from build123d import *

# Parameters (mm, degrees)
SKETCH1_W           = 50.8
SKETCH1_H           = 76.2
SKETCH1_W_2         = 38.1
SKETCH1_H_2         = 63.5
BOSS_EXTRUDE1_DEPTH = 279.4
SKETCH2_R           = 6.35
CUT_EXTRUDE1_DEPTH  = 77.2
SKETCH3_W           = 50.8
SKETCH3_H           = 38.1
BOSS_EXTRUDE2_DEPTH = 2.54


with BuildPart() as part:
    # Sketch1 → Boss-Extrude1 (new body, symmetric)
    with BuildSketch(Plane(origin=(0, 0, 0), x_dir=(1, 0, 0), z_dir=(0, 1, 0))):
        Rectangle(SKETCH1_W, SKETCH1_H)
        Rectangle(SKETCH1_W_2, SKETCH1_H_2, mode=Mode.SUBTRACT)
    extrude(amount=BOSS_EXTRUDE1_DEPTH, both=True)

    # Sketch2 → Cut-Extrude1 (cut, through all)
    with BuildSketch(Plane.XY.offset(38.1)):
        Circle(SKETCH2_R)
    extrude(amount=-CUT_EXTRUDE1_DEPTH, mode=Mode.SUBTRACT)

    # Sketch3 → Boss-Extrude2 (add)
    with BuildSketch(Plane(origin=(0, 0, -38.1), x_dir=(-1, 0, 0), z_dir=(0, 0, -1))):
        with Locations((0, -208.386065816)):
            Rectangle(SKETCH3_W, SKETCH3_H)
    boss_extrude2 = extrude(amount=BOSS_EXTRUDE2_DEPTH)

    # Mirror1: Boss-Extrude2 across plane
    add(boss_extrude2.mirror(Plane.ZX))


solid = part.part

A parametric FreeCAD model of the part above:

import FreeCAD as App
import Part
import Sketcher
from FreeCAD import Vector
Q = App.Units.Quantity


def add_polygon(sketch, points):
    """Adds a closed chain of lines whose ends are joined by coincident constraints."""
    first, n = sketch.GeometryCount, len(points)
    for a, b in zip(points, points[1:] + points[:1]):
        sketch.addGeometry(Part.LineSegment(App.Vector(*a, 0), App.Vector(*b, 0)), False)
    for i in range(n):
        sketch.addConstraint(Sketcher.Constraint("Coincident", first + i, 2, first + (i + 1) % n, 1))

doc = App.newDocument("Part")
body = doc.addObject("PartDesign::Body", "Body")

sketch1 = body.newObject("Sketcher::SketchObject", "Sketch")
sketch1.AttachmentSupport = (doc.getObject("XZ_Plane"), [""])
sketch1.MapMode = "FlatFace"
add_polygon(sketch1, [(-25.4, -38.1), (-25.4, 38.1), (25.4, 38.1), (25.4, -38.1)])
add_polygon(sketch1, [(19.05, 31.75), (-19.05, 31.75), (-19.05, -31.75), (19.05, -31.75)])
sketch1.addConstraint(Sketcher.Constraint("Vertical", 0))
sketch1.addConstraint(Sketcher.Constraint("Horizontal", 1))
sketch1.addConstraint(Sketcher.Constraint("Vertical", 2))
sketch1.addConstraint(Sketcher.Constraint("Horizontal", 3))
sketch1.addConstraint(Sketcher.Constraint("Horizontal", 4))
sketch1.addConstraint(Sketcher.Constraint("Vertical", 5))
sketch1.addConstraint(Sketcher.Constraint("Horizontal", 6))
sketch1.addConstraint(Sketcher.Constraint("Vertical", 7))
sketch1.addConstraint(Sketcher.Constraint("Symmetric", 0, 2, 2, 2, -1, 1))
sketch1.addConstraint(Sketcher.Constraint("Symmetric", 4, 2, 6, 2, -1, 1))
sketch1.addConstraint(Sketcher.Constraint("DistanceX", 1, 1, 1, 2, Q("2 in")))
sketch1.addConstraint(Sketcher.Constraint("DistanceY", 0, 1, 0, 2, Q("3 in")))
sketch1.addConstraint(Sketcher.Constraint("DistanceX", 4, 2, 4, 1, Q("1.5 in")))
sketch1.addConstraint(Sketcher.Constraint("DistanceY", 5, 2, 5, 1, Q("2.5 in")))
pad1 = body.newObject("PartDesign::Pad", "Pad")
pad1.Profile = sketch1
pad1.Length = Q("22 in")
pad1.Midplane = True

sketch2 = body.newObject("Sketcher::SketchObject", "Sketch001")
sketch2.AttachmentSupport = (doc.getObject("XY_Plane"), [""])
sketch2.MapMode = "FlatFace"
sketch2.AttachmentOffset = App.Placement(Vector(0, 0, 1.5 * 25.4), App.Rotation())
sketch2.addGeometry(Part.Circle(Vector(0, 0, 0), Vector(0, 0, 1), 6.35), False)
sketch2.addConstraint(Sketcher.Constraint("Coincident", 0, 3, -1, 1))
sketch2.addConstraint(Sketcher.Constraint("Diameter", 0, Q("0.5 in")))
pocket1 = body.newObject("PartDesign::Pocket", "Pocket")
pocket1.Profile = sketch2
pocket1.Type = "ThroughAll"

sketch3 = body.newObject("Sketcher::SketchObject", "Sketch002")
sketch3.AttachmentSupport = (doc.getObject("XY_Plane"), [""])
sketch3.MapMode = "FlatFace"
sketch3.AttachmentOffset = App.Placement(Vector(0, 0, -1.5 * 25.4), App.Rotation())
add_polygon(sketch3, [(25.4, -189.336066), (25.4, -227.436066), (-25.4, -227.436066), (-25.4, -189.336066)])
sketch3.addConstraint(Sketcher.Constraint("Vertical", 0))
sketch3.addConstraint(Sketcher.Constraint("Horizontal", 1))
sketch3.addConstraint(Sketcher.Constraint("Vertical", 2))
sketch3.addConstraint(Sketcher.Constraint("Horizontal", 3))
sketch3.addConstraint(Sketcher.Constraint("DistanceX", 1, 2, 1, 1, Q("2 in")))
sketch3.addConstraint(Sketcher.Constraint("DistanceY", 0, 2, 0, 1, Q("1.5 in")))
sketch3.addConstraint(Sketcher.Constraint("DistanceX", -1, 1, 0, 2, Q("1 in")))
sketch3.addConstraint(Sketcher.Constraint("DistanceY", 0, 2, -1, 1, 227.436066))
pad2 = body.newObject("PartDesign::Pad", "Pad001")
pad2.Profile = sketch3
pad2.Length = Q("0.1 in")
pad2.Reversed = True
doc.recompute()

mirrored = body.newObject("PartDesign::Mirrored", "Mirrored")
mirrored.Originals = [pad2]
mirrored.MirrorPlane = (doc.getObject("XZ_Plane"), [""])
body.Tip = mirrored

doc.recompute()
